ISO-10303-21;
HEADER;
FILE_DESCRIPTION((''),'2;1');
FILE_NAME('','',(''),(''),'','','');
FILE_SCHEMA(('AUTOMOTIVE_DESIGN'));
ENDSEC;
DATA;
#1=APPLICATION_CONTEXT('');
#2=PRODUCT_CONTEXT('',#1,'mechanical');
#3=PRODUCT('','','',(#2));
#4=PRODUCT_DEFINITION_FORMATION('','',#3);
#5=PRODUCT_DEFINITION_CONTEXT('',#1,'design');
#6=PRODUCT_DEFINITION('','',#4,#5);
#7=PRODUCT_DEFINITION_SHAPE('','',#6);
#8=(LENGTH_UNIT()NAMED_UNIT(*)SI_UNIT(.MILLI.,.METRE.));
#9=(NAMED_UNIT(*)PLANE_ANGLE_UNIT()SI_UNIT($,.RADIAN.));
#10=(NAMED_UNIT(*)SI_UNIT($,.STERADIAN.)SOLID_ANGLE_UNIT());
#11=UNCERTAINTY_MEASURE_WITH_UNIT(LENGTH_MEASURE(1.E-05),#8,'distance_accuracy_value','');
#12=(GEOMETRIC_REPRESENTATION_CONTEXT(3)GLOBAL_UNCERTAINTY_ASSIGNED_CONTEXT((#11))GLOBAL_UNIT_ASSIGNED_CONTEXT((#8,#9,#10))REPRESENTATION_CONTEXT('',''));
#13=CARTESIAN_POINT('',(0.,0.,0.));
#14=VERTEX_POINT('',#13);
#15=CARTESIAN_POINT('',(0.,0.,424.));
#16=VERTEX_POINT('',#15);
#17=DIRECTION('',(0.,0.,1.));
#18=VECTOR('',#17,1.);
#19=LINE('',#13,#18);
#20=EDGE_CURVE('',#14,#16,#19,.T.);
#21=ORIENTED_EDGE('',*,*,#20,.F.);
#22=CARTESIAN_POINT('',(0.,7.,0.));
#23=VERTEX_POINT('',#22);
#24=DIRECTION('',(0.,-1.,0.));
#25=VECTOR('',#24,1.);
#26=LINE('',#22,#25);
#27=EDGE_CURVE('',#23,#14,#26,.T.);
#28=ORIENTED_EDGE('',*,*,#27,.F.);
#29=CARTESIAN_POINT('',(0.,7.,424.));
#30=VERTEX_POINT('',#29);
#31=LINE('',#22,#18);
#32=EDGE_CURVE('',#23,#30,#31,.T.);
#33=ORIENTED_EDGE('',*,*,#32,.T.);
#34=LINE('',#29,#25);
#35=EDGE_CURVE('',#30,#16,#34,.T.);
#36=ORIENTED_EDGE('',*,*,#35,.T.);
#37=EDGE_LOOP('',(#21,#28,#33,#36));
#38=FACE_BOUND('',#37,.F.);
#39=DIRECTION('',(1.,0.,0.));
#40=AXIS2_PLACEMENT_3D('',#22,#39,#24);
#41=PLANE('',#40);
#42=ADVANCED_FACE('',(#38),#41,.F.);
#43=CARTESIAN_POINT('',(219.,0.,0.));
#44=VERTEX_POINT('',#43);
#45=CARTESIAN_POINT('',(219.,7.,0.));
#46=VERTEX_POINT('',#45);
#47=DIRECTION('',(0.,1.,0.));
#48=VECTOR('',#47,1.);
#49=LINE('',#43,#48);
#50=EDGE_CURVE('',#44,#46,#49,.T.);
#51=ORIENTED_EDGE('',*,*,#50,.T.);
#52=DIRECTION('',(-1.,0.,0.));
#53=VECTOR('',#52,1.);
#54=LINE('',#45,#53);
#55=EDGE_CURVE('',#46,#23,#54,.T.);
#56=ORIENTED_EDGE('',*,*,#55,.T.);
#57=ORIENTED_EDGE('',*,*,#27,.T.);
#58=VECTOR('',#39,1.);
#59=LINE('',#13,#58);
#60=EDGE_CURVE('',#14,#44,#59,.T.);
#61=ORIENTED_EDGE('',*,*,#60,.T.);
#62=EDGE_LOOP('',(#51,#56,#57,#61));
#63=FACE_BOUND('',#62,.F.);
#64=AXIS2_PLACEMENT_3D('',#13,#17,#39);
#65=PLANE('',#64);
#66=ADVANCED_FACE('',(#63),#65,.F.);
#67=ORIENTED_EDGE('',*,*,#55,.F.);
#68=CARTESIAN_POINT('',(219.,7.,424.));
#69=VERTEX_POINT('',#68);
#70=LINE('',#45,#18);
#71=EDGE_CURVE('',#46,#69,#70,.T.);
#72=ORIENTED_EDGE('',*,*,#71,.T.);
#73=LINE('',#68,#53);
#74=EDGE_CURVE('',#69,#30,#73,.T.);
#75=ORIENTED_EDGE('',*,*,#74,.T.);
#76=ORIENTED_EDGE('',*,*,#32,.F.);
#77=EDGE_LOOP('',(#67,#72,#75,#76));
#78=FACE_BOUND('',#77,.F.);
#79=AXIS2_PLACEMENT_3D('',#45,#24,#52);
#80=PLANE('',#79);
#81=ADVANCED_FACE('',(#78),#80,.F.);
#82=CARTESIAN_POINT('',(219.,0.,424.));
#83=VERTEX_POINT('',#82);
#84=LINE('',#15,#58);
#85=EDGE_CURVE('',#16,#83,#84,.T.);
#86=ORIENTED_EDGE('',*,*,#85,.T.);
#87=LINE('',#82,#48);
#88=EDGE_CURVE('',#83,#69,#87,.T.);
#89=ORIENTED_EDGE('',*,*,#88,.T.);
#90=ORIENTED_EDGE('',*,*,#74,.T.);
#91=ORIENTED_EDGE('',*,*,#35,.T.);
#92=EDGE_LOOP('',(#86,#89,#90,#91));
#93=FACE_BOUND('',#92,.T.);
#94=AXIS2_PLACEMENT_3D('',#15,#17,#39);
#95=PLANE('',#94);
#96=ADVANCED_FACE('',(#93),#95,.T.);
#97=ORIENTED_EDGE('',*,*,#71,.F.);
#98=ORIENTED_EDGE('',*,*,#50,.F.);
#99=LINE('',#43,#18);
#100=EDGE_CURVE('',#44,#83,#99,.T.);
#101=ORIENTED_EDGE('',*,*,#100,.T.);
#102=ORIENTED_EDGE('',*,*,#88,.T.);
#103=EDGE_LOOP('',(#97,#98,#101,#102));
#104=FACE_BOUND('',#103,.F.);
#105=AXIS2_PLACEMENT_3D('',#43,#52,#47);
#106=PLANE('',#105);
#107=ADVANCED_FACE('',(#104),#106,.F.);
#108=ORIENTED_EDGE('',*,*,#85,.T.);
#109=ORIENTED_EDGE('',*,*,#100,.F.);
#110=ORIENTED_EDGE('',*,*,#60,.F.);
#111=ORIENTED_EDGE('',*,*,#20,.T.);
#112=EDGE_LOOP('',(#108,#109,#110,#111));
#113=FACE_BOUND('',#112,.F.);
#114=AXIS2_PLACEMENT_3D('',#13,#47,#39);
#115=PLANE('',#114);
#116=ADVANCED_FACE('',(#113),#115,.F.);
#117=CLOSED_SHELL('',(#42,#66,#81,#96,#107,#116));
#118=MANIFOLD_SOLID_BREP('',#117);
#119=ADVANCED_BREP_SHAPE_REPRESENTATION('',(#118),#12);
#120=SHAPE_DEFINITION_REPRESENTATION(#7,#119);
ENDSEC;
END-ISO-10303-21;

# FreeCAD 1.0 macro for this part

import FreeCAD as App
import Part
import Sketcher
Q = App.Units.Quantity


def add_polygon(sketch, points):
    """Adds a closed chain of lines whose ends are joined by coincident constraints."""
    first, n = sketch.GeometryCount, len(points)
    for a, b in zip(points, points[1:] + points[:1]):
        sketch.addGeometry(Part.LineSegment(App.Vector(*a, 0), App.Vector(*b, 0)), False)
    for i in range(n):
        sketch.addConstraint(Sketcher.Constraint("Coincident", first + i, 2, first + (i + 1) % n, 1))

doc = App.newDocument("Part")
body = doc.addObject("PartDesign::Body", "Body")

sketch1 = body.newObject("Sketcher::SketchObject", "Sketch")
sketch1.AttachmentSupport = (doc.getObject("XY_Plane"), [""])
sketch1.MapMode = "FlatFace"
add_polygon(sketch1, [(0, 7), (0, 0), (219, 0), (219, 7)])
sketch1.addConstraint([
    Sketcher.Constraint("Vertical", 0),
    Sketcher.Constraint("Horizontal", 1),
    Sketcher.Constraint("Vertical", 2),
    Sketcher.Constraint("Horizontal", 3),
    Sketcher.Constraint("Coincident", 0, 2, -1, 1),
    Sketcher.Constraint("DistanceX", 1, 1, 1, 2, Q("219 mm")),
    Sketcher.Constraint("DistanceY", 0, 2, 0, 1, Q("7 mm")),
])
pad1 = body.newObject("PartDesign::Pad", "Pad")
pad1.Profile = sketch1
pad1.Length = 424

doc.recompute()
